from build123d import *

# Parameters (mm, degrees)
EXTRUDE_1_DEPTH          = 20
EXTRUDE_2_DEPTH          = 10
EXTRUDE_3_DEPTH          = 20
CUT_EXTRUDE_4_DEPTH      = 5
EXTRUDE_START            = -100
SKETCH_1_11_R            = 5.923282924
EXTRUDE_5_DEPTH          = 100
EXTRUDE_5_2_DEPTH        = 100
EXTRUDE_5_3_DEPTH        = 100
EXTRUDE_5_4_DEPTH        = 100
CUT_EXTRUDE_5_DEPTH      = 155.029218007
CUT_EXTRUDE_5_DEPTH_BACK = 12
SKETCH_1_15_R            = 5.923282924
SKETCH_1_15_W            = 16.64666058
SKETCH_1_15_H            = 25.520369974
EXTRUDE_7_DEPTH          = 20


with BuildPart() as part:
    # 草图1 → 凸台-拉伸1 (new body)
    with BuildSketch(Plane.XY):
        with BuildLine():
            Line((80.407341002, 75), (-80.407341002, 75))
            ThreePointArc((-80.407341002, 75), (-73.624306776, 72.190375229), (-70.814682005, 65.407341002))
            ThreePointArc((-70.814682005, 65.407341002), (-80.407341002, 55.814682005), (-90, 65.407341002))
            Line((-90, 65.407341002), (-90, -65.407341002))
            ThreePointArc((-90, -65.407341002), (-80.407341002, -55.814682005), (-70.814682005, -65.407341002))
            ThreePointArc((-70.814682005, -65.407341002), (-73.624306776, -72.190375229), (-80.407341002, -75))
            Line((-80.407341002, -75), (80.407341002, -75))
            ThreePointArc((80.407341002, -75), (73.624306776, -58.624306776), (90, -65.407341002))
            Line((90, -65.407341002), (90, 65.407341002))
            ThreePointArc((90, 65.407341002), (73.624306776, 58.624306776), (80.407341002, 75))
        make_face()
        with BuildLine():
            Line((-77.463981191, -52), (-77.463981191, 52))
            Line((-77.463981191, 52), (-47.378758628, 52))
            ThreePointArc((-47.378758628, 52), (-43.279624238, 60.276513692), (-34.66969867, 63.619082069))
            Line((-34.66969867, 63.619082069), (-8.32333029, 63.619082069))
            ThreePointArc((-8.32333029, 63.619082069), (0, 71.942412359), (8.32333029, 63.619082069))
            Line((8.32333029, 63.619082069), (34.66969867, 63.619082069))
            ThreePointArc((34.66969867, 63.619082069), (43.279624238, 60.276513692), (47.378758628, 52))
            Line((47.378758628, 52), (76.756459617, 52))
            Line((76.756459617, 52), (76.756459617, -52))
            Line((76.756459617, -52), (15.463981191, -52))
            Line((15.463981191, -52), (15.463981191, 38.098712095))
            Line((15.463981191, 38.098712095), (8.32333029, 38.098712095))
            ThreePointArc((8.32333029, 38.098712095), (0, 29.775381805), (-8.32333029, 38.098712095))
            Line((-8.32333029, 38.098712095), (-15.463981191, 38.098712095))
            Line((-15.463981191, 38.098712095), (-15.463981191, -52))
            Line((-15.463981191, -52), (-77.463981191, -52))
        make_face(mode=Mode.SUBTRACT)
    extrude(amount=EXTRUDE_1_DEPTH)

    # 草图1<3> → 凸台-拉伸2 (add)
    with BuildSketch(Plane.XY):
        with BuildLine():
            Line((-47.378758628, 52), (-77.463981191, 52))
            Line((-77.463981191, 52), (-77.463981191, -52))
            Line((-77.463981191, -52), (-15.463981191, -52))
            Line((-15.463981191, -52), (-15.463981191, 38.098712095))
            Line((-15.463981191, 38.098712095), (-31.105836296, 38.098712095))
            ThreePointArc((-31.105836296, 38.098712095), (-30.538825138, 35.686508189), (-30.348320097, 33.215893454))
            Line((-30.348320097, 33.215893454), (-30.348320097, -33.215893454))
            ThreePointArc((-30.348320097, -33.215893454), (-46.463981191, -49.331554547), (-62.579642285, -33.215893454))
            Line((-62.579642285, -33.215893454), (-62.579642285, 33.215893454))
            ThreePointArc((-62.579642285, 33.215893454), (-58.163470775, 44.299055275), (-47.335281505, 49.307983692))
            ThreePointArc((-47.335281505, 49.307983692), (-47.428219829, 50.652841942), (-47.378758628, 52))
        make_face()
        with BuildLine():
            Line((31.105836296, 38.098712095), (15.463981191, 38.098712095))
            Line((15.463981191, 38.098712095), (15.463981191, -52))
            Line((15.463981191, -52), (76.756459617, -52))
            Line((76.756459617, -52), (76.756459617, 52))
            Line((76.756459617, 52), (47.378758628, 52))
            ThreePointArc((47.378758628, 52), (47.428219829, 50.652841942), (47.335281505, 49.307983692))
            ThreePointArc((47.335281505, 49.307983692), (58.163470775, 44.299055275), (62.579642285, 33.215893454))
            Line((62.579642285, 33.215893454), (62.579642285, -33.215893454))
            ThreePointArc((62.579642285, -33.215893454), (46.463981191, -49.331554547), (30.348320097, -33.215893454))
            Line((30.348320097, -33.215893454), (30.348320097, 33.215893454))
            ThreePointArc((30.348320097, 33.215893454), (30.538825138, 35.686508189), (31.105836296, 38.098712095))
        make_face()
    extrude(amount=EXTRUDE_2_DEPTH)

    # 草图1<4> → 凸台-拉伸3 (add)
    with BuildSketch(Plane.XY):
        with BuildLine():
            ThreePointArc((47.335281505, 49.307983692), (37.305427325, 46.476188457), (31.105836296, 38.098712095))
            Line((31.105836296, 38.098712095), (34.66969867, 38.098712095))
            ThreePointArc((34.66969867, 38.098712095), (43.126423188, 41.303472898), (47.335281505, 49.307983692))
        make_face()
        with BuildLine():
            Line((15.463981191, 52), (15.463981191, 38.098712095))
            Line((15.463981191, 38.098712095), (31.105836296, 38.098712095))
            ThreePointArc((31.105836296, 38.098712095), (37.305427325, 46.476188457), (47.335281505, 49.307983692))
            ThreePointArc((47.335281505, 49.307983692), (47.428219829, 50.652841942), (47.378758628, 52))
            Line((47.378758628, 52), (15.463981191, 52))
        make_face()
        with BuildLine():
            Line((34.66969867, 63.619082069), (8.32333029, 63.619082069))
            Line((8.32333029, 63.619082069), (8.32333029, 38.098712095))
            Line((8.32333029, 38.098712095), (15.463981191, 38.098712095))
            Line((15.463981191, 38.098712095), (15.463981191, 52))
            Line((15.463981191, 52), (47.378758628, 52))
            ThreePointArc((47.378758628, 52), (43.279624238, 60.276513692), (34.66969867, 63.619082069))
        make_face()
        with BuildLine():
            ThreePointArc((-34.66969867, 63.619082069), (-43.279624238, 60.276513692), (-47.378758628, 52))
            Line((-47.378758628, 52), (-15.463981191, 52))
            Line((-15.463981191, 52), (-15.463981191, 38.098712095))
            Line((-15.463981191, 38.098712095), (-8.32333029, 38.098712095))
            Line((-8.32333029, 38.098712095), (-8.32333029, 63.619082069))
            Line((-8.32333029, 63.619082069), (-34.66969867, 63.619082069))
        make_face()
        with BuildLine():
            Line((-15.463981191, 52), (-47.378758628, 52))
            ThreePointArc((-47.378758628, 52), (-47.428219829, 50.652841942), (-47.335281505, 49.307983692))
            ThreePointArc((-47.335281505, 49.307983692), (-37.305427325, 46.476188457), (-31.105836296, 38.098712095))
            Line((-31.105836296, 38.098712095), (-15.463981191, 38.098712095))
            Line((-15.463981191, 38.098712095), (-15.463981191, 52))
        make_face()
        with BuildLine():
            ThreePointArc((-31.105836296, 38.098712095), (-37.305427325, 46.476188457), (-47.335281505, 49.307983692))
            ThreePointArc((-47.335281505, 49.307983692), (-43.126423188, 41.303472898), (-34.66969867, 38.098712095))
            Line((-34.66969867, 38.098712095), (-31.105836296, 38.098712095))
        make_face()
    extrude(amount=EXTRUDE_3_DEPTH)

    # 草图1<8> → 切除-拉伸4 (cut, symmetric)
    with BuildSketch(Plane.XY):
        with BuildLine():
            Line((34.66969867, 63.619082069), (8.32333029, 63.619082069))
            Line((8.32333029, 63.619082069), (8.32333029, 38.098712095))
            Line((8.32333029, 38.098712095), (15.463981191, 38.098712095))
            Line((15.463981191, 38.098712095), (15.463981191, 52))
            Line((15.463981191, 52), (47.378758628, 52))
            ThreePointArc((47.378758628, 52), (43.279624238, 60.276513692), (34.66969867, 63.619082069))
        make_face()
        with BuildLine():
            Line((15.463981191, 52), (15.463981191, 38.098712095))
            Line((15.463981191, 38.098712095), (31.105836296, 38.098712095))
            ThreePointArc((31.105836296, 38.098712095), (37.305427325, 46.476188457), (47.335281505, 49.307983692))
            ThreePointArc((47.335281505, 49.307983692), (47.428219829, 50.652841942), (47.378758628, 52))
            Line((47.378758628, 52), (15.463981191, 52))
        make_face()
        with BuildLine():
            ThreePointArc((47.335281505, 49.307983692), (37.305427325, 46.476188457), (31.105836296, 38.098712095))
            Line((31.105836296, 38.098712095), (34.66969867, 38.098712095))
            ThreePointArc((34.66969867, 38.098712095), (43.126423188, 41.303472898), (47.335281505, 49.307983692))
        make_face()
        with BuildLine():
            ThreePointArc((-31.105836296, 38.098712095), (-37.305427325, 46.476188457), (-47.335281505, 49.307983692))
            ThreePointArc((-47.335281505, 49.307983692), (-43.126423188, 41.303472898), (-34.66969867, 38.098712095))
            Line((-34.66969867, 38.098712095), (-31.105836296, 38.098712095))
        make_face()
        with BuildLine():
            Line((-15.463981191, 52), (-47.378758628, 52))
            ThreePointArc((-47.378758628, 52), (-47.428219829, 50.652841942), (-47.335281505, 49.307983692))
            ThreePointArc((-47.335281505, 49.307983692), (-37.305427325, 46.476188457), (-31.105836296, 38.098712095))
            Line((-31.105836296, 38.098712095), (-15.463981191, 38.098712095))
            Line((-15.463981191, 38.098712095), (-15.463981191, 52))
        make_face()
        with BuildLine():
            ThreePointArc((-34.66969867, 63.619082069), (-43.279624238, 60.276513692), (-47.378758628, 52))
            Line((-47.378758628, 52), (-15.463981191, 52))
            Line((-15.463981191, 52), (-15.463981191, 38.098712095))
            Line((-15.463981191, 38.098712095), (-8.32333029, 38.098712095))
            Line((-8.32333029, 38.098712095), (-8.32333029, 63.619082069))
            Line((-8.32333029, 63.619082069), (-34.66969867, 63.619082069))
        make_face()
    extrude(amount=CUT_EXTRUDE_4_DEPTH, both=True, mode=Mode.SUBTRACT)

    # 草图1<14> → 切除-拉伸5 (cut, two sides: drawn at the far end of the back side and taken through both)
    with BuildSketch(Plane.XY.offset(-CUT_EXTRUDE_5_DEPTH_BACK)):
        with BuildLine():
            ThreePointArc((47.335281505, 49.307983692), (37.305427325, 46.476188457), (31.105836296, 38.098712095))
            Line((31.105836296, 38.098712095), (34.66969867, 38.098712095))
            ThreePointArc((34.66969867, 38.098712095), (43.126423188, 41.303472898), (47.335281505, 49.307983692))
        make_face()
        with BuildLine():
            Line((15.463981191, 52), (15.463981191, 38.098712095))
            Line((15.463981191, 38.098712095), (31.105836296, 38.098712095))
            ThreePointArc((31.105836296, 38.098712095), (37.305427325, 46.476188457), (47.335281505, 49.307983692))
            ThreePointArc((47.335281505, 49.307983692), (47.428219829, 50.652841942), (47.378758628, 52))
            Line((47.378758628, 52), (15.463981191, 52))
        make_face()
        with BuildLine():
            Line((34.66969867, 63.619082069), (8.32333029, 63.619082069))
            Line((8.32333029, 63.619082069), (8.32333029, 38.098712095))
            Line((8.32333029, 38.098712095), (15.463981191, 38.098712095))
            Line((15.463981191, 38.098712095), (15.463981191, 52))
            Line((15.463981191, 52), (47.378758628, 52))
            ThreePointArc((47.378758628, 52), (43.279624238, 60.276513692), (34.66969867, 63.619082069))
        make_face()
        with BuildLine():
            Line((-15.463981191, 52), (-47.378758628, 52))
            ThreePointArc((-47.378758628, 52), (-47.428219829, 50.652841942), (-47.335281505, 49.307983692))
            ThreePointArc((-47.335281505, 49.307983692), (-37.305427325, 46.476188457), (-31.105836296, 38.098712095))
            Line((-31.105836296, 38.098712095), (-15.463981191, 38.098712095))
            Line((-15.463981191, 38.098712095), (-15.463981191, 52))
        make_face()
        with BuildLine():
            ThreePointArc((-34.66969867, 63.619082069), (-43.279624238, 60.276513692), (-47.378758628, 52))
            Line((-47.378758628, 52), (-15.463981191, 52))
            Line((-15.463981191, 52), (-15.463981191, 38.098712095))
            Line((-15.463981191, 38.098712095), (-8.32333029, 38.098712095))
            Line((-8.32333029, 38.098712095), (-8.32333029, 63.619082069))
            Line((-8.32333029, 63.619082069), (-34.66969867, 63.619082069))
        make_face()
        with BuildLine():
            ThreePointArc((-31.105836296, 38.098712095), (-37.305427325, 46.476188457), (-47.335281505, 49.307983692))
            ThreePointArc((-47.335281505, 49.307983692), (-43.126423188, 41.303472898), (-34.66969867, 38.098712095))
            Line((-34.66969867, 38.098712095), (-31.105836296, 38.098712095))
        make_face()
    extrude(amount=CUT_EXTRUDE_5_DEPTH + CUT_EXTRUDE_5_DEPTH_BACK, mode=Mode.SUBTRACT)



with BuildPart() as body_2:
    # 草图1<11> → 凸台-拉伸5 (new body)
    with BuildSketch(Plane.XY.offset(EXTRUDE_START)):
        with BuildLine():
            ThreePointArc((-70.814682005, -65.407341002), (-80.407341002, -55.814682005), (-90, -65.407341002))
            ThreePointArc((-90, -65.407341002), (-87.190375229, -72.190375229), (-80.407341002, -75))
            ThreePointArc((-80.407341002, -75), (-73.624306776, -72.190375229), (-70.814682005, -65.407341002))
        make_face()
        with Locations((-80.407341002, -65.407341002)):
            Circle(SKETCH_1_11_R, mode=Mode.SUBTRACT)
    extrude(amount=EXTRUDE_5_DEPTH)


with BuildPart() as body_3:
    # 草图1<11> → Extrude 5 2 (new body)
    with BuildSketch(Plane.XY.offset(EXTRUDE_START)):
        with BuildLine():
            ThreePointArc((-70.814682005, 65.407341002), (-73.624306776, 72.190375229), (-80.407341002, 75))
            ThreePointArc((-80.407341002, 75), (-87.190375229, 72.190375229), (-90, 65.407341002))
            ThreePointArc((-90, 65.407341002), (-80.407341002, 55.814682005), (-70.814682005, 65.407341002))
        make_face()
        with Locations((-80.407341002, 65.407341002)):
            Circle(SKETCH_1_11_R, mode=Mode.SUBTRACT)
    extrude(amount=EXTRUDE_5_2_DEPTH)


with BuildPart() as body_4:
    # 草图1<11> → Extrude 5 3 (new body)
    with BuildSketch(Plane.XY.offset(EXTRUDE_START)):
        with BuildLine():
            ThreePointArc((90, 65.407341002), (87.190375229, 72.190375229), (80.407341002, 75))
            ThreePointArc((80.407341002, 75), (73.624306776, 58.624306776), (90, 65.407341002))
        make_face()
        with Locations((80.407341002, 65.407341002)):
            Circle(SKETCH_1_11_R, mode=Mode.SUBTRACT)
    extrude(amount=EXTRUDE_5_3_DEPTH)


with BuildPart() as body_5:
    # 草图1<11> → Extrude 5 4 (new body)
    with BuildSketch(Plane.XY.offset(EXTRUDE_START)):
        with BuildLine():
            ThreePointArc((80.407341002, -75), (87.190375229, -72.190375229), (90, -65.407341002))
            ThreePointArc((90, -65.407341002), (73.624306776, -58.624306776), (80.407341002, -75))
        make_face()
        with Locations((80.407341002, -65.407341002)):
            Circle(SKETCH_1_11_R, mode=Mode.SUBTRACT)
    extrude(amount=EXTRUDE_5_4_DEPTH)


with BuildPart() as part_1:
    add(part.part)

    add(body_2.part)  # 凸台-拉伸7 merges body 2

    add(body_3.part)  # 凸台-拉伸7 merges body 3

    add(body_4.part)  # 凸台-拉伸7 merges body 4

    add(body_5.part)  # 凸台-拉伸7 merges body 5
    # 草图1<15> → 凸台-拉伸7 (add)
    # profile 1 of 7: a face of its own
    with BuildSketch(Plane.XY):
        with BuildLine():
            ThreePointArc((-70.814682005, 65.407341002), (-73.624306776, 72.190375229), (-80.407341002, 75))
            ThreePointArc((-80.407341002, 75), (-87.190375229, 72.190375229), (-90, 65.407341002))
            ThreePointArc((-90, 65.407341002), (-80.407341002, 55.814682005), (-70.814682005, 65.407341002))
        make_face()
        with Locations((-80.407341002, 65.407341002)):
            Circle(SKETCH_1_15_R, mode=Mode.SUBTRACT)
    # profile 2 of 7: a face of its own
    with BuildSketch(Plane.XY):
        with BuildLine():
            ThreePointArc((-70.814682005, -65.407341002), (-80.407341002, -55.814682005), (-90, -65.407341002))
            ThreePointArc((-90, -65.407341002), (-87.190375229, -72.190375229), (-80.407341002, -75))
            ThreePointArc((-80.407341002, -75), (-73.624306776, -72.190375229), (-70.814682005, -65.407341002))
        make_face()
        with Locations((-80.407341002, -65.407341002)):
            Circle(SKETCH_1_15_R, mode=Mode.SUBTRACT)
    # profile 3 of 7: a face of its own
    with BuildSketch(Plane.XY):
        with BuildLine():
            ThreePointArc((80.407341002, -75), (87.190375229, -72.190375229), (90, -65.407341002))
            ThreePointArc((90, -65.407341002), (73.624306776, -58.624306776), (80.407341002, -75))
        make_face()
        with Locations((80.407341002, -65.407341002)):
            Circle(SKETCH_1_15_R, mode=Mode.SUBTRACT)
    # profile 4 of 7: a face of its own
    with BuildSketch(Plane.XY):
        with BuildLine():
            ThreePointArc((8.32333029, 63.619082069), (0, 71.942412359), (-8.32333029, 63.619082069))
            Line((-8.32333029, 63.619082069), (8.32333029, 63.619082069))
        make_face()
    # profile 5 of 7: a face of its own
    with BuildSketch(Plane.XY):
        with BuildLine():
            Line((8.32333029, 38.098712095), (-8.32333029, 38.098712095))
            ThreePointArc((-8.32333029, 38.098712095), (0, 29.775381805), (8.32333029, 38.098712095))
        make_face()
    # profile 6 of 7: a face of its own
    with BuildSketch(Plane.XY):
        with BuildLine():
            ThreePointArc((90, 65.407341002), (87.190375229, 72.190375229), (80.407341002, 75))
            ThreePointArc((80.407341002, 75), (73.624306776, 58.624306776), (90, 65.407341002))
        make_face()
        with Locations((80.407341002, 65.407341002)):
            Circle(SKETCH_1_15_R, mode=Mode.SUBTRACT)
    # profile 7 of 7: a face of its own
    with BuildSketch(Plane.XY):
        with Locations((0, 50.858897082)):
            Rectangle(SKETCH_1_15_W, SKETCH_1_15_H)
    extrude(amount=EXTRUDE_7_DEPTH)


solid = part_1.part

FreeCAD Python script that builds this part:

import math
import FreeCAD as App
import Part
import Sketcher

V = App.Vector
Q = App.Units.Quantity

doc = App.newDocument("Part")
params = doc.addObject("Spreadsheet::Sheet", "Params")
for row, (alias, value) in enumerate([
    ("sketch1_width", "62 mm"),
    ("sketch1_height", "104 mm"),
    ("pad1_length", "20 mm"),
    ("sketch2_width", "62 mm"),
    ("sketch2_height", "104 mm"),
    ("pad2_length", "10 mm"),
    ("pad3_length", "20 mm"),
    ("pocket1_length", "10 mm"),
    ("pad4_length", "100 mm"),
    ("pad5_length", "100 mm"),
    ("pad6_length", "100 mm"),
    ("pad7_length", "100 mm"),
    ("pad8_length", "20 mm"),
], start=1):
    params.set(f"A{row}", alias)
    params.set(f"B{row}", "=" + value)
    params.setAlias(f"B{row}", alias)

body = doc.addObject("PartDesign::Body", "Body")

# Sketch on XY plane
sketch1 = body.newObject("Sketcher::SketchObject", "Sketch")
sketch1.AttachmentSupport = (doc.getObject("XY_Plane"), [""])
sketch1.MapMode = "FlatFace"
sketch1.addGeometry(Part.LineSegment(V(80, 75, 0), V(-80, 75, 0)), False)
sketch1.addGeometry(Part.ArcOfCircle(Part.Circle(V(-80, 65, 0), V(0, 0, 1), 10), math.radians(0), math.radians(90)), False)
sketch1.addGeometry(Part.ArcOfCircle(Part.Circle(V(-80, 65, 0), V(0, 0, 1), 10), math.radians(-180), math.radians(0)), False)
sketch1.addGeometry(Part.LineSegment(V(-90, 65, 0), V(-90, -65, 0)), False)
sketch1.addGeometry(Part.ArcOfCircle(Part.Circle(V(-80, -65, 0), V(0, 0, 1), 10), math.radians(0), math.radians(180)), False)
sketch1.addGeometry(Part.ArcOfCircle(Part.Circle(V(-80, -65, 0), V(0, 0, 1), 10), math.radians(-90), math.radians(0)), False)
sketch1.addGeometry(Part.LineSegment(V(-80, -75, 0), V(80, -75, 0)), False)
sketch1.addGeometry(Part.ArcOfCircle(Part.Circle(V(80, -65, 0), V(0, 0, 1), 10), math.radians(0), math.radians(270)), False)
sketch1.addGeometry(Part.LineSegment(V(90, -65, 0), V(90, 65, 0)), False)
sketch1.addGeometry(Part.ArcOfCircle(Part.Circle(V(80, 65, 0), V(0, 0, 1), 10), math.radians(90), math.radians(360)), False)
sketch1.addGeometry(Part.LineSegment(V(-15, -52, 0), V(-77, -52, 0)), False)
sketch1.addGeometry(Part.LineSegment(V(-77, -52, 0), V(-77, 52, 0)), False)
sketch1.addGeometry(Part.LineSegment(V(-77, 52, 0), V(-47, 52, 0)), False)
sketch1.addGeometry(Part.ArcOfCircle(Part.Circle(V(-35, 51, 0), V(0, 0, 1), 13), math.radians(90), math.radians(175)), False)
sketch1.addGeometry(Part.LineSegment(V(-35, 64, 0), V(-8, 64, 0)), False)
sketch1.addGeometry(Part.ArcOfCircle(Part.Circle(V(0, 64, 0), V(0, 0, 1), 8), math.radians(0), math.radians(180)), False)
sketch1.addGeometry(Part.LineSegment(V(8, 64, 0), V(35, 64, 0)), False)
sketch1.addGeometry(Part.ArcOfCircle(Part.Circle(V(35, 51, 0), V(0, 0, 1), 13), math.radians(5), math.radians(90)), False)
sketch1.addGeometry(Part.LineSegment(V(47, 52, 0), V(77, 52, 0)), False)
sketch1.addGeometry(Part.LineSegment(V(77, 52, 0), V(77, -52, 0)), False)
sketch1.addGeometry(Part.LineSegment(V(77, -52, 0), V(15, -52, 0)), False)
sketch1.addGeometry(Part.LineSegment(V(15, -52, 0), V(15, 38, 0)), False)
sketch1.addGeometry(Part.LineSegment(V(15, 38, 0), V(8, 38, 0)), False)
sketch1.addGeometry(Part.ArcOfCircle(Part.Circle(V(0, 38, 0), V(0, 0, 1), 8), math.radians(180), math.radians(360)), False)
sketch1.addGeometry(Part.LineSegment(V(-8, 38, 0), V(-15, 38, 0)), False)
sketch1.addGeometry(Part.LineSegment(V(-15, 38, 0), V(-15, -52, 0)), False)
sketch1.addConstraint(Sketcher.Constraint("Tangent", 0, 2, 1, 2))
sketch1.addConstraint(Sketcher.Constraint("Tangent", 1, 1, 2, 2))
sketch1.addConstraint(Sketcher.Constraint("Tangent", 2, 1, 3, 1))
sketch1.addConstraint(Sketcher.Constraint("Tangent", 3, 2, 4, 2))
sketch1.addConstraint(Sketcher.Constraint("Tangent", 4, 1, 5, 2))
sketch1.addConstraint(Sketcher.Constraint("Tangent", 5, 1, 6, 1))
sketch1.addConstraint(Sketcher.Constraint("Tangent", 6, 2, 7, 2))
sketch1.addConstraint(Sketcher.Constraint("Tangent", 7, 1, 8, 1))
sketch1.addConstraint(Sketcher.Constraint("Tangent", 8, 2, 9, 2))
sketch1.addConstraint(Sketcher.Constraint("Tangent", 9, 1, 0, 1))
sketch1.addConstraint(Sketcher.Constraint("Coincident", 10, 2, 11, 1))
sketch1.addConstraint(Sketcher.Constraint("Coincident", 11, 2, 12, 1))
sketch1.addConstraint(Sketcher.Constraint("Coincident", 12, 2, 13, 2))
sketch1.addConstraint(Sketcher.Constraint("Tangent", 13, 1, 14, 1))
sketch1.addConstraint(Sketcher.Constraint("Coincident", 14, 2, 15, 2))
sketch1.addConstraint(Sketcher.Constraint("Coincident", 15, 1, 16, 1))
sketch1.addConstraint(Sketcher.Constraint("Tangent", 16, 2, 17, 2))
sketch1.addConstraint(Sketcher.Constraint("Coincident", 17, 1, 18, 1))
sketch1.addConstraint(Sketcher.Constraint("Coincident", 18, 2, 19, 1))
sketch1.addConstraint(Sketcher.Constraint("Coincident", 19, 2, 20, 1))
sketch1.addConstraint(Sketcher.Constraint("Coincident", 20, 2, 21, 1))
sketch1.addConstraint(Sketcher.Constraint("Coincident", 21, 2, 22, 1))
sketch1.addConstraint(Sketcher.Constraint("Coincident", 22, 2, 23, 2))
sketch1.addConstraint(Sketcher.Constraint("Coincident", 23, 1, 24, 1))
sketch1.addConstraint(Sketcher.Constraint("Coincident", 24, 2, 25, 1))
sketch1.addConstraint(Sketcher.Constraint("Coincident", 25, 2, 10, 1))
sketch1.addConstraint(Sketcher.Constraint("Horizontal", 0))
sketch1.addConstraint(Sketcher.Constraint("Vertical", 3))
sketch1.addConstraint(Sketcher.Constraint("Horizontal", 6))
sketch1.addConstraint(Sketcher.Constraint("Vertical", 8))
sketch1.addConstraint(Sketcher.Constraint("Horizontal", 10))
sketch1.addConstraint(Sketcher.Constraint("Vertical", 11))
sketch1.addConstraint(Sketcher.Constraint("Horizontal", 12))
sketch1.addConstraint(Sketcher.Constraint("Horizontal", 14))
sketch1.addConstraint(Sketcher.Constraint("Horizontal", 16))
sketch1.addConstraint(Sketcher.Constraint("Horizontal", 18))
sketch1.addConstraint(Sketcher.Constraint("Vertical", 19))
sketch1.addConstraint(Sketcher.Constraint("Horizontal", 20))
sketch1.addConstraint(Sketcher.Constraint("Vertical", 21))
sketch1.addConstraint(Sketcher.Constraint("Horizontal", 22))
sketch1.addConstraint(Sketcher.Constraint("Horizontal", 24))
sketch1.addConstraint(Sketcher.Constraint("Vertical", 25))
sketch1.addConstraint(Sketcher.Constraint("Equal", 1, 2))
sketch1.addConstraint(Sketcher.Constraint("Equal", 2, 4))
sketch1.addConstraint(Sketcher.Constraint("Equal", 4, 5))
sketch1.addConstraint(Sketcher.Constraint("Equal", 5, 7))
sketch1.addConstraint(Sketcher.Constraint("Equal", 7, 9))
sketch1.addConstraint(Sketcher.Constraint("Equal", 13, 17))
sketch1.addConstraint(Sketcher.Constraint("Equal", 15, 23))
sketch1.addConstraint(Sketcher.Constraint("Symmetric", 1, 3, 7, 3, -1, 1))
sketch1.addConstraint(Sketcher.Constraint("Symmetric", 13, 3, 17, 3, -2))
sketch1.addConstraint(Sketcher.Constraint("Symmetric", 22, 2, 23, 1, -2))
sketch1.addConstraint(Sketcher.Constraint("Symmetric", 20, 2, 25, 2, -2))
sketch1.addConstraint(Sketcher.Constraint("PointOnObject", 15, 3, -2))
sketch1.addConstraint(Sketcher.Constraint("Horizontal", 9, 3, 1, 1))
sketch1.addConstraint(Sketcher.Constraint("Horizontal", 3, 2, 4, 1))
sketch1.addConstraint(Sketcher.Constraint("Horizontal", 15, 3, 13, 1))
sketch1.addConstraint(Sketcher.Constraint("Horizontal", 12, 2, 17, 1))
sketch1.addConstraint(Sketcher.Constraint("Horizontal", 23, 3, 21, 2))
sketch1.addConstraint(Sketcher.Constraint("DistanceX", 10, 2, 10, 1, Q("62 mm")))
sketch1.addConstraint(Sketcher.Constraint("DistanceY", 11, 1, 11, 2, Q("104 mm")))
sketch1.addConstraint(Sketcher.Constraint("DistanceY", -1, 1, 0, 2, Q("75 mm")))
sketch1.addConstraint(Sketcher.Constraint("DistanceX", 2, 1, -1, 1, Q("90 mm")))
sketch1.addConstraint(Sketcher.Constraint("DistanceY", 10, 2, -1, 1, Q("52 mm")))
sketch1.addConstraint(Sketcher.Constraint("Radius", 1, Q("9.592659 mm")))
sketch1.addConstraint(Sketcher.Constraint("Radius", 15, Q("8.32333 mm")))
sketch1.addConstraint(Sketcher.Constraint("DistanceX", 18, 1, 18, 2, Q("29.377701 mm")))
sketch1.addConstraint(Sketcher.Constraint("Radius", 13, Q("12.760185 mm")))
sketch1.addConstraint(Sketcher.Constraint("DistanceX", 14, 1, 14, 2, Q("26.346368 mm")))
sketch1.addConstraint(Sketcher.Constraint("DistanceX", 20, 2, 20, 1, Q("61.292478 mm")))
sketch1.addConstraint(Sketcher.Constraint("DistanceX", 22, 2, 22, 1, Q("7.140651 mm")))
sketch1.addConstraint(Sketcher.Constraint("DistanceY", 21, 1, 21, 2, Q("90.098712 mm")))
sketch1.setExpression("Constraints[59]", "Params.sketch1_width")
sketch1.setExpression("Constraints[60]", "Params.sketch1_height")
pad1 = body.newObject("PartDesign::Pad", "Pad")
pad1.Profile = sketch1
pad1.setExpression("Length", "Params.pad1_length")

# Sketch on XY plane
sketch2 = body.newObject("Sketcher::SketchObject", "Sketch001")
sketch2.AttachmentSupport = (doc.getObject("XY_Plane"), [""])
sketch2.MapMode = "FlatFace"
sketch2.addGeometry(Part.LineSegment(V(-47.4, 52, 0), V(-77.5, 52, 0)), False)
sketch2.addGeometry(Part.LineSegment(V(-77.5, 52, 0), V(-77.5, -52, 0)), False)
sketch2.addGeometry(Part.LineSegment(V(-77.5, -52, 0), V(-15.5, -52, 0)), False)
sketch2.addGeometry(Part.LineSegment(V(-15.5, -52, 0), V(-15.5, 38.1, 0)), False)
sketch2.addGeometry(Part.LineSegment(V(-15.5, 38.1, 0), V(-31.1, 38.1, 0)), False)
sketch2.addGeometry(Part.ArcOfCircle(Part.Circle(V(-46.5, 33.2, 0), V(0, 0, 1), 16.1), math.radians(0), math.radians(17.64)), False)
sketch2.addGeometry(Part.LineSegment(V(-30.3, 33.2, 0), V(-30.3, -33.2, 0)), False)
sketch2.addGeometry(Part.ArcOfCircle(Part.Circle(V(-46.5, -33.2, 0), V(0, 0, 1), 16.1), math.radians(-180), math.radians(0)), False)
sketch2.addGeometry(Part.LineSegment(V(-62.6, -33.2, 0), V(-62.6, 33.2, 0)), False)
sketch2.addGeometry(Part.ArcOfCircle(Part.Circle(V(-46.5, 33.2, 0), V(0, 0, 1), 16.1), math.radians(93), math.radians(180)), False)
sketch2.addGeometry(Part.ArcOfCircle(Part.Circle(V(-34.7, 50.9, 0), V(0, 0, 1), 12.8), math.radians(174.87), math.radians(186.98)), False)
sketch2.addGeometry(Part.LineSegment(V(31.1, 38.1, 0), V(15.5, 38.1, 0)), False)
sketch2.addGeometry(Part.LineSegment(V(15.5, 38.1, 0), V(15.5, -52, 0)), False)
sketch2.addGeometry(Part.LineSegment(V(15.5, -52, 0), V(76.8, -52, 0)), False)
sketch2.addGeometry(Part.LineSegment(V(76.8, -52, 0), V(76.8, 52, 0)), False)
sketch2.addGeometry(Part.LineSegment(V(76.8, 52, 0), V(47.4, 52, 0)), False)
sketch2.addGeometry(Part.ArcOfCircle(Part.Circle(V(34.7, 50.9, 0), V(0, 0, 1), 12.8), math.radians(-6.98), math.radians(5.13)), False)
sketch2.addGeometry(Part.ArcOfCircle(Part.Circle(V(46.5, 33.2, 0), V(0, 0, 1), 16.1), math.radians(0), math.radians(87)), False)
sketch2.addGeometry(Part.LineSegment(V(62.6, 33.2, 0), V(62.6, -33.2, 0)), False)
sketch2.addGeometry(Part.ArcOfCircle(Part.Circle(V(46.5, -33.2, 0), V(0, 0, 1), 16.1), math.radians(-180), math.radians(0)), False)
sketch2.addGeometry(Part.LineSegment(V(30.3, -33.2, 0), V(30.3, 33.2, 0)), False)
sketch2.addGeometry(Part.ArcOfCircle(Part.Circle(V(46.5, 33.2, 0), V(0, 0, 1), 16.1), math.radians(162.36), math.radians(180)), False)
sketch2.addConstraint(Sketcher.Constraint("Coincident", 0, 2, 1, 1))
sketch2.addConstraint(Sketcher.Constraint("Coincident", 1, 2, 2, 1))
sketch2.addConstraint(Sketcher.Constraint("Coincident", 2, 2, 3, 1))
sketch2.addConstraint(Sketcher.Constraint("Coincident", 3, 2, 4, 1))
sketch2.addConstraint(Sketcher.Constraint("Coincident", 4, 2, 5, 2))
sketch2.addConstraint(Sketcher.Constraint("Tangent", 5, 1, 6, 1))
sketch2.addConstraint(Sketcher.Constraint("Tangent", 6, 2, 7, 2))
sketch2.addConstraint(Sketcher.Constraint("Tangent", 7, 1, 8, 1))
sketch2.addConstraint(Sketcher.Constraint("Tangent", 8, 2, 9, 2))
sketch2.addConstraint(Sketcher.Constraint("Coincident", 9, 1, 10, 2))
sketch2.addConstraint(Sketcher.Constraint("Coincident", 10, 1, 0, 1))
sketch2.addConstraint(Sketcher.Constraint("Coincident", 11, 2, 12, 1))
sketch2.addConstraint(Sketcher.Constraint("Coincident", 12, 2, 13, 1))
sketch2.addConstraint(Sketcher.Constraint("Coincident", 13, 2, 14, 1))
sketch2.addConstraint(Sketcher.Constraint("Coincident", 14, 2, 15, 1))
sketch2.addConstraint(Sketcher.Constraint("Coincident", 15, 2, 16, 2))
sketch2.addConstraint(Sketcher.Constraint("Coincident", 16, 1, 17, 2))
sketch2.addConstraint(Sketcher.Constraint("Tangent", 17, 1, 18, 1))
sketch2.addConstraint(Sketcher.Constraint("Tangent", 18, 2, 19, 2))
sketch2.addConstraint(Sketcher.Constraint("Tangent", 19, 1, 20, 1))
sketch2.addConstraint(Sketcher.Constraint("Tangent", 20, 2, 21, 2))
sketch2.addConstraint(Sketcher.Constraint("Coincident", 21, 1, 11, 1))
sketch2.addConstraint(Sketcher.Constraint("Horizontal", 0))
sketch2.addConstraint(Sketcher.Constraint("Vertical", 1))
sketch2.addConstraint(Sketcher.Constraint("Horizontal", 2))
sketch2.addConstraint(Sketcher.Constraint("Vertical", 3))
sketch2.addConstraint(Sketcher.Constraint("Horizontal", 4))
sketch2.addConstraint(Sketcher.Constraint("Vertical", 6))
sketch2.addConstraint(Sketcher.Constraint("Vertical", 8))
sketch2.addConstraint(Sketcher.Constraint("Horizontal", 11))
sketch2.addConstraint(Sketcher.Constraint("Vertical", 12))
sketch2.addConstraint(Sketcher.Constraint("Horizontal", 13))
sketch2.addConstraint(Sketcher.Constraint("Vertical", 14))
sketch2.addConstraint(Sketcher.Constraint("Horizontal", 15))
sketch2.addConstraint(Sketcher.Constraint("Vertical", 18))
sketch2.addConstraint(Sketcher.Constraint("Vertical", 20))
sketch2.addConstraint(Sketcher.Constraint("Coincident", 9, 3, 5, 3))
sketch2.addConstraint(Sketcher.Constraint("Coincident", 21, 3, 17, 3))
sketch2.addConstraint(Sketcher.Constraint("Equal", 5, 7))
sketch2.addConstraint(Sketcher.Constraint("Equal", 10, 16))
sketch2.addConstraint(Sketcher.Constraint("Equal", 9, 17))
sketch2.addConstraint(Sketcher.Constraint("Equal", 17, 19))
sketch2.addConstraint(Sketcher.Constraint("Symmetric", 7, 3, 17, 3, -1, 1))
sketch2.addConstraint(Sketcher.Constraint("Symmetric", 10, 3, 16, 3, -2))
sketch2.addConstraint(Sketcher.Constraint("Symmetric", 3, 2, 11, 2, -2))
sketch2.addConstraint(Sketcher.Constraint("Horizontal", 9, 3, 17, 3))
sketch2.addConstraint(Sketcher.Constraint("Horizontal", 7, 3, 19, 3))
sketch2.addConstraint(Sketcher.Constraint("Horizontal", 2, 2, 12, 2))
sketch2.addConstraint(Sketcher.Constraint("Horizontal", 10, 1, 14, 2))
sketch2.addConstraint(Sketcher.Constraint("DistanceX", 2, 1, 2, 2, Q("62 mm")))
sketch2.addConstraint(Sketcher.Constraint("DistanceY", 1, 2, 1, 1, Q("104 mm")))
sketch2.addConstraint(Sketcher.Constraint("DistanceY", -1, 1, 0, 2, Q("52 mm")))
sketch2.addConstraint(Sketcher.Constraint("DistanceX", 0, 2, 5, 3, Q("31 mm")))
sketch2.addConstraint(Sketcher.Constraint("Radius", 5, Q("16.115661 mm")))
sketch2.addConstraint(Sketcher.Constraint("DistanceX", 15, 2, 15, 1, Q("29.377701 mm")))
sketch2.addConstraint(Sketcher.Constraint("Radius", 10, Q("12.760185 mm")))
sketch2.addConstraint(Sketcher.Constraint("DistanceX", 13, 1, 13, 2, Q("61.292478 mm")))
sketch2.addConstraint(Sketcher.Constraint("DistanceX", 10, 3, -1, 1, Q("34.669699 mm")))
sketch2.addConstraint(Sketcher.Constraint("DistanceX", 9, 1, 9, 3, Q("0.8713 mm")))
sketch2.addConstraint(Sketcher.Constraint("DistanceX", 5, 1, 11, 2, Q("45.812301 mm")))
sketch2.addConstraint(Sketcher.Constraint("DistanceX", 4, 2, 4, 1, Q("15.641855 mm")))
sketch2.setExpression("Constraints[49]", "Params.sketch2_width")
sketch2.setExpression("Constraints[50]", "Params.sketch2_height")
pad2 = body.newObject("PartDesign::Pad", "Pad001")
pad2.Profile = sketch2
pad2.setExpression("Length", "Params.pad2_length")

# Sketch on XY plane
sketch3 = body.newObject("Sketcher::SketchObject", "Sketch002")
sketch3.AttachmentSupport = (doc.getObject("XY_Plane"), [""])
sketch3.MapMode = "FlatFace"
sketch3.addGeometry(Part.ArcOfCircle(Part.Circle(V(34.7, 50.9, 0), V(0, 0, 1), 12.8), math.radians(-90), math.radians(-7)), False)
sketch3.addGeometry(Part.ArcOfCircle(Part.Circle(V(34.7, 50.9, 0), V(0, 0, 1), 12.8), math.radians(-6.98), math.radians(5.13)), False)
sketch3.addGeometry(Part.ArcOfCircle(Part.Circle(V(34.7, 50.9, 0), V(0, 0, 1), 12.8), math.radians(5), math.radians(90)), False)
sketch3.addGeometry(Part.LineSegment(V(34.7, 63.6, 0), V(8.3, 63.6, 0)), False)
sketch3.addGeometry(Part.LineSegment(V(8.3, 63.6, 0), V(8.3, 38.1, 0)), False)
sketch3.addGeometry(Part.LineSegment(V(8.3, 38.1, 0), V(34.7, 38.1, 0)), False)
sketch3.addGeometry(Part.ArcOfCircle(Part.Circle(V(-34.7, 50.9, 0), V(0, 0, 1), 12.8), math.radians(90), math.radians(175)), False)
sketch3.addGeometry(Part.ArcOfCircle(Part.Circle(V(-34.7, 50.9, 0), V(0, 0, 1), 12.8), math.radians(174.87), math.radians(186.98)), False)
sketch3.addGeometry(Part.ArcOfCircle(Part.Circle(V(-34.7, 50.9, 0), V(0, 0, 1), 12.8), math.radians(-173), math.radians(-90)), False)
sketch3.addGeometry(Part.LineSegment(V(-34.7, 38.1, 0), V(-8.3, 38.1, 0)), False)
sketch3.addGeometry(Part.LineSegment(V(-8.3, 38.1, 0), V(-8.3, 63.6, 0)), False)
sketch3.addGeometry(Part.LineSegment(V(-8.3, 63.6, 0), V(-34.7, 63.6, 0)), False)
sketch3.addConstraint(Sketcher.Constraint("Tangent", 0, 2, 1, 1))
sketch3.addConstraint(Sketcher.Constraint("Tangent", 1, 2, 2, 1))
sketch3.addConstraint(Sketcher.Constraint("Tangent", 2, 2, 3, 1))
sketch3.addConstraint(Sketcher.Constraint("Coincident", 3, 2, 4, 1))
sketch3.addConstraint(Sketcher.Constraint("Coincident", 4, 2, 5, 1))
sketch3.addConstraint(Sketcher.Constraint("Tangent", 5, 2, 0, 1))
sketch3.addConstraint(Sketcher.Constraint("Tangent", 6, 2, 7, 1))
sketch3.addConstraint(Sketcher.Constraint("Tangent", 7, 2, 8, 1))
sketch3.addConstraint(Sketcher.Constraint("Tangent", 8, 2, 9, 1))
sketch3.addConstraint(Sketcher.Constraint("Coincident", 9, 2, 10, 1))
sketch3.addConstraint(Sketcher.Constraint("Coincident", 10, 2, 11, 1))
sketch3.addConstraint(Sketcher.Constraint("Tangent", 11, 2, 6, 1))
sketch3.addConstraint(Sketcher.Constraint("Horizontal", 3))
sketch3.addConstraint(Sketcher.Constraint("Vertical", 4))
sketch3.addConstraint(Sketcher.Constraint("Horizontal", 5))
sketch3.addConstraint(Sketcher.Constraint("Horizontal", 9))
sketch3.addConstraint(Sketcher.Constraint("Vertical", 10))
sketch3.addConstraint(Sketcher.Constraint("Horizontal", 11))
sketch3.addConstraint(Sketcher.Constraint("Coincident", 2, 3, 0, 3))
sketch3.addConstraint(Sketcher.Constraint("Coincident", 8, 3, 6, 3))
sketch3.addConstraint(Sketcher.Constraint("Equal", 2, 6))
sketch3.addConstraint(Sketcher.Constraint("Symmetric", 0, 3, 6, 3, -2))
sketch3.addConstraint(Sketcher.Constraint("Horizontal", 1, 2, 6, 2))
sketch3.addConstraint(Sketcher.Constraint("Horizontal", 0, 2, 7, 2))
sketch3.addConstraint(Sketcher.Constraint("Equal", 5, 9))
sketch3.addConstraint(Sketcher.Constraint("DistanceY", -1, 1, 1, 2, Q("52 mm")))
sketch3.addConstraint(Sketcher.Constraint("Radius", 0, Q("12.760185 mm")))
sketch3.addConstraint(Sketcher.Constraint("DistanceX", 3, 2, 3, 1, Q("26.346368 mm")))
sketch3.addConstraint(Sketcher.Constraint("DistanceX", -1, 1, 0, 3, Q("34.669699 mm")))
sketch3.addConstraint(Sketcher.Constraint("DistanceY", 0, 2, 2, 2, Q("14.311098 mm")))
sketch3.addConstraint(Sketcher.Constraint("DistanceX", -1, 1, 1, 2, Q("47.378759 mm")))
pad3 = body.newObject("PartDesign::Pad", "Pad002")
pad3.Profile = sketch3
pad3.setExpression("Length", "Params.pad3_length")

# Sketch on XY plane
sketch4 = body.newObject("Sketcher::SketchObject", "Sketch003")
sketch4.AttachmentSupport = (doc.getObject("XY_Plane"), [""])
sketch4.MapMode = "FlatFace"
sketch4.addGeometry(Part.LineSegment(V(34.7, 63.6, 0), V(8.3, 63.6, 0)), False)
sketch4.addGeometry(Part.LineSegment(V(8.3, 63.6, 0), V(8.3, 38.1, 0)), False)
sketch4.addGeometry(Part.LineSegment(V(8.3, 38.1, 0), V(34.7, 38.1, 0)), False)
sketch4.addGeometry(Part.ArcOfCircle(Part.Circle(V(34.7, 50.9, 0), V(0, 0, 1), 12.8), math.radians(-90), math.radians(-7)), False)
sketch4.addGeometry(Part.ArcOfCircle(Part.Circle(V(34.7, 50.9, 0), V(0, 0, 1), 12.8), math.radians(-6.98), math.radians(5.13)), False)
sketch4.addGeometry(Part.ArcOfCircle(Part.Circle(V(34.7, 50.9, 0), V(0, 0, 1), 12.8), math.radians(5), math.radians(90)), False)
sketch4.addGeometry(Part.ArcOfCircle(Part.Circle(V(-34.7, 50.9, 0), V(0, 0, 1), 12.8), math.radians(-173), math.radians(-90)), False)
sketch4.addGeometry(Part.LineSegment(V(-34.7, 38.1, 0), V(-8.3, 38.1, 0)), False)
sketch4.addGeometry(Part.LineSegment(V(-8.3, 38.1, 0), V(-8.3, 63.6, 0)), False)
sketch4.addGeometry(Part.LineSegment(V(-8.3, 63.6, 0), V(-34.7, 63.6, 0)), False)
sketch4.addGeometry(Part.ArcOfCircle(Part.Circle(V(-34.7, 50.9, 0), V(0, 0, 1), 12.8), math.radians(90), math.radians(175)), False)
sketch4.addGeometry(Part.ArcOfCircle(Part.Circle(V(-34.7, 50.9, 0), V(0, 0, 1), 12.8), math.radians(174.87), math.radians(186.98)), False)
sketch4.addConstraint(Sketcher.Constraint("Coincident", 0, 2, 1, 1))
sketch4.addConstraint(Sketcher.Constraint("Coincident", 1, 2, 2, 1))
sketch4.addConstraint(Sketcher.Constraint("Tangent", 2, 2, 3, 1))
sketch4.addConstraint(Sketcher.Constraint("Tangent", 3, 2, 4, 1))
sketch4.addConstraint(Sketcher.Constraint("Tangent", 4, 2, 5, 1))
sketch4.addConstraint(Sketcher.Constraint("Tangent", 5, 2, 0, 1))
sketch4.addConstraint(Sketcher.Constraint("Tangent", 6, 2, 7, 1))
sketch4.addConstraint(Sketcher.Constraint("Coincident", 7, 2, 8, 1))
sketch4.addConstraint(Sketcher.Constraint("Coincident", 8, 2, 9, 1))
sketch4.addConstraint(Sketcher.Constraint("Tangent", 9, 2, 10, 1))
sketch4.addConstraint(Sketcher.Constraint("Tangent", 10, 2, 11, 1))
sketch4.addConstraint(Sketcher.Constraint("Tangent", 11, 2, 6, 1))
sketch4.addConstraint(Sketcher.Constraint("Horizontal", 0))
sketch4.addConstraint(Sketcher.Constraint("Vertical", 1))
sketch4.addConstraint(Sketcher.Constraint("Horizontal", 2))
sketch4.addConstraint(Sketcher.Constraint("Horizontal", 7))
sketch4.addConstraint(Sketcher.Constraint("Vertical", 8))
sketch4.addConstraint(Sketcher.Constraint("Horizontal", 9))
sketch4.addConstraint(Sketcher.Constraint("Coincident", 5, 3, 3, 3))
sketch4.addConstraint(Sketcher.Constraint("Coincident", 10, 3, 6, 3))
sketch4.addConstraint(Sketcher.Constraint("Equal", 5, 6))
sketch4.addConstraint(Sketcher.Constraint("Symmetric", 3, 3, 6, 3, -2))
sketch4.addConstraint(Sketcher.Constraint("Horizontal", 4, 2, 10, 2))
sketch4.addConstraint(Sketcher.Constraint("Horizontal", 3, 2, 11, 2))
sketch4.addConstraint(Sketcher.Constraint("Equal", 2, 7))
sketch4.addConstraint(Sketcher.Constraint("DistanceY", -1, 1, 4, 2, Q("52 mm")))
sketch4.addConstraint(Sketcher.Constraint("Radius", 3, Q("12.760185 mm")))
sketch4.addConstraint(Sketcher.Constraint("DistanceX", 0, 2, 0, 1, Q("26.346368 mm")))
sketch4.addConstraint(Sketcher.Constraint("DistanceX", -1, 1, 3, 3, Q("34.669699 mm")))
sketch4.addConstraint(Sketcher.Constraint("DistanceY", 3, 2, 5, 2, Q("14.311098 mm")))
sketch4.addConstraint(Sketcher.Constraint("DistanceX", -1, 1, 4, 2, Q("47.378759 mm")))
pocket1 = body.newObject("PartDesign::Pocket", "Pocket")
pocket1.Profile = sketch4
pocket1.setExpression("Length", "Params.pocket1_length")
pocket1.Midplane = True

# Sketch on XY plane
sketch5 = body.newObject("Sketcher::SketchObject", "Sketch004")
sketch5.AttachmentSupport = (doc.getObject("XY_Plane"), [""])
sketch5.MapMode = "FlatFace"
sketch5.addGeometry(Part.ArcOfCircle(Part.Circle(V(34.7, 50.9, 0), V(0, 0, 1), 12.8), math.radians(-90), math.radians(-7)), False)
sketch5.addGeometry(Part.ArcOfCircle(Part.Circle(V(34.7, 50.9, 0), V(0, 0, 1), 12.8), math.radians(-6.98), math.radians(5.13)), False)
sketch5.addGeometry(Part.ArcOfCircle(Part.Circle(V(34.7, 50.9, 0), V(0, 0, 1), 12.8), math.radians(5), math.radians(90)), False)
sketch5.addGeometry(Part.LineSegment(V(34.7, 63.6, 0), V(8.3, 63.6, 0)), False)
sketch5.addGeometry(Part.LineSegment(V(8.3, 63.6, 0), V(8.3, 38.1, 0)), False)
sketch5.addGeometry(Part.LineSegment(V(8.3, 38.1, 0), V(34.7, 38.1, 0)), False)
sketch5.addGeometry(Part.ArcOfCircle(Part.Circle(V(-34.7, 50.9, 0), V(0, 0, 1), 12.8), math.radians(174.87), math.radians(186.98)), False)
sketch5.addGeometry(Part.ArcOfCircle(Part.Circle(V(-34.7, 50.9, 0), V(0, 0, 1), 12.8), math.radians(-173), math.radians(-90)), False)
sketch5.addGeometry(Part.LineSegment(V(-34.7, 38.1, 0), V(-8.3, 38.1, 0)), False)
sketch5.addGeometry(Part.LineSegment(V(-8.3, 38.1, 0), V(-8.3, 63.6, 0)), False)
sketch5.addGeometry(Part.LineSegment(V(-8.3, 63.6, 0), V(-34.7, 63.6, 0)), False)
sketch5.addGeometry(Part.ArcOfCircle(Part.Circle(V(-34.7, 50.9, 0), V(0, 0, 1), 12.8), math.radians(90), math.radians(175)), False)
sketch5.addConstraint(Sketcher.Constraint("Tangent", 0, 2, 1, 1))
sketch5.addConstraint(Sketcher.Constraint("Tangent", 1, 2, 2, 1))
sketch5.addConstraint(Sketcher.Constraint("Tangent", 2, 2, 3, 1))
sketch5.addConstraint(Sketcher.Constraint("Coincident", 3, 2, 4, 1))
sketch5.addConstraint(Sketcher.Constraint("Coincident", 4, 2, 5, 1))
sketch5.addConstraint(Sketcher.Constraint("Tangent", 5, 2, 0, 1))
sketch5.addConstraint(Sketcher.Constraint("Tangent", 6, 2, 7, 1))
sketch5.addConstraint(Sketcher.Constraint("Tangent", 7, 2, 8, 1))
sketch5.addConstraint(Sketcher.Constraint("Coincident", 8, 2, 9, 1))
sketch5.addConstraint(Sketcher.Constraint("Coincident", 9, 2, 10, 1))
sketch5.addConstraint(Sketcher.Constraint("Tangent", 10, 2, 11, 1))
sketch5.addConstraint(Sketcher.Constraint("Tangent", 11, 2, 6, 1))
sketch5.addConstraint(Sketcher.Constraint("Horizontal", 3))
sketch5.addConstraint(Sketcher.Constraint("Vertical", 4))
sketch5.addConstraint(Sketcher.Constraint("Horizontal", 5))
sketch5.addConstraint(Sketcher.Constraint("Horizontal", 8))
sketch5.addConstraint(Sketcher.Constraint("Vertical", 9))
sketch5.addConstraint(Sketcher.Constraint("Horizontal", 10))
sketch5.addConstraint(Sketcher.Constraint("Coincident", 2, 3, 0, 3))
sketch5.addConstraint(Sketcher.Constraint("Equal", 2, 6))
sketch5.addConstraint(Sketcher.Constraint("Equal", 6, 7))
sketch5.addConstraint(Sketcher.Constraint("Equal", 7, 11))
sketch5.addConstraint(Sketcher.Constraint("Symmetric", 0, 3, 6, 3, -2))
sketch5.addConstraint(Sketcher.Constraint("Horizontal", 0, 2, 6, 2))
sketch5.addConstraint(Sketcher.Constraint("Horizontal", 1, 2, 11, 2))
sketch5.addConstraint(Sketcher.Constraint("Equal", 5, 8))
sketch5.addConstraint(Sketcher.Constraint("DistanceY", -1, 1, 1, 2, Q("52 mm")))
sketch5.addConstraint(Sketcher.Constraint("Radius", 0, Q("12.760185 mm")))
sketch5.addConstraint(Sketcher.Constraint("DistanceX", 3, 2, 3, 1, Q("26.346368 mm")))
sketch5.addConstraint(Sketcher.Constraint("DistanceX", -1, 1, 0, 3, Q("34.669699 mm")))
sketch5.addConstraint(Sketcher.Constraint("DistanceY", 0, 2, 2, 2, Q("14.311098 mm")))
sketch5.addConstraint(Sketcher.Constraint("DistanceX", -1, 1, 1, 2, Q("47.378759 mm")))
pocket2 = body.newObject("PartDesign::Pocket", "Pocket001")
pocket2.Profile = sketch5
pocket2.Type = "ThroughAll"
pocket2.Midplane = True
body2 = doc.addObject("PartDesign::Body", "Body001")

# Sketch on XY plane
sketch6 = body2.newObject("Sketcher::SketchObject", "Sketch005")
sketch6.AttachmentSupport = (doc.getObject("XY_Plane001"), [""])
sketch6.MapMode = "FlatFace"
sketch6.AttachmentOffset = App.Placement(V(0, 0, -100), App.Rotation())
sketch6.addGeometry(Part.ArcOfCircle(Part.Circle(V(-80, -65, 0), V(0, 0, 1), 10), math.radians(0), math.radians(180)), False)
sketch6.addGeometry(Part.ArcOfCircle(Part.Circle(V(-80, -65, 0), V(0, 0, 1), 10), math.radians(180), math.radians(270)), False)
sketch6.addGeometry(Part.ArcOfCircle(Part.Circle(V(-80, -65, 0), V(0, 0, 1), 10), math.radians(-90), math.radians(0)), False)
sketch6.addGeometry(Part.Circle(V(-80, -65, 0), V(0, 0, 1), 6), False)
sketch6.addConstraint(Sketcher.Constraint("Tangent", 0, 2, 1, 1))
sketch6.addConstraint(Sketcher.Constraint("Tangent", 1, 2, 2, 1))
sketch6.addConstraint(Sketcher.Constraint("Tangent", 2, 2, 0, 1))
sketch6.addConstraint(Sketcher.Constraint("Coincident", 3, 3, 0, 3))
sketch6.addConstraint(Sketcher.Constraint("Horizontal", 3, 3, 0, 2))
sketch6.addConstraint(Sketcher.Constraint("Horizontal", 0, 2, 2, 2))
sketch6.addConstraint(Sketcher.Constraint("Vertical", 3, 3, 1, 2))
sketch6.addConstraint(Sketcher.Constraint("DistanceX", 0, 2, -1, 1, Q("90 mm")))
sketch6.addConstraint(Sketcher.Constraint("DistanceY", 1, 2, -1, 1, Q("75 mm")))
sketch6.addConstraint(Sketcher.Constraint("Radius", 0, Q("9.592659 mm")))
sketch6.addConstraint(Sketcher.Constraint("Diameter", 3, Q("11.846566 mm")))
pad4 = body2.newObject("PartDesign::Pad", "Pad003")
pad4.Profile = sketch6
pad4.setExpression("Length", "Params.pad4_length")
body3 = doc.addObject("PartDesign::Body", "Body002")

# Sketch on XY plane
sketch7 = body3.newObject("Sketcher::SketchObject", "Sketch006")
sketch7.AttachmentSupport = (doc.getObject("XY_Plane002"), [""])
sketch7.MapMode = "FlatFace"
sketch7.AttachmentOffset = App.Placement(V(0, 0, -100), App.Rotation())
sketch7.addGeometry(Part.ArcOfCircle(Part.Circle(V(-80, 65, 0), V(0, 0, 1), 10), math.radians(0), math.radians(90)), False)
sketch7.addGeometry(Part.ArcOfCircle(Part.Circle(V(-80, 65, 0), V(0, 0, 1), 10), math.radians(90), math.radians(180)), False)
sketch7.addGeometry(Part.ArcOfCircle(Part.Circle(V(-80, 65, 0), V(0, 0, 1), 10), math.radians(-180), math.radians(0)), False)
sketch7.addGeometry(Part.Circle(V(-80, 65, 0), V(0, 0, 1), 6), False)
sketch7.addConstraint(Sketcher.Constraint("Tangent", 0, 2, 1, 1))
sketch7.addConstraint(Sketcher.Constraint("Tangent", 1, 2, 2, 1))
sketch7.addConstraint(Sketcher.Constraint("Tangent", 2, 2, 0, 1))
sketch7.addConstraint(Sketcher.Constraint("Coincident", 3, 3, 0, 3))
sketch7.addConstraint(Sketcher.Constraint("Horizontal", 3, 3, 1, 2))
sketch7.addConstraint(Sketcher.Constraint("Horizontal", 1, 2, 2, 2))
sketch7.addConstraint(Sketcher.Constraint("Vertical", 3, 3, 0, 2))
sketch7.addConstraint(Sketcher.Constraint("DistanceY", -1, 1, 0, 2, Q("75 mm")))
sketch7.addConstraint(Sketcher.Constraint("DistanceX", 1, 2, -1, 1, Q("90 mm")))
sketch7.addConstraint(Sketcher.Constraint("Radius", 0, Q("9.592659 mm")))
sketch7.addConstraint(Sketcher.Constraint("Diameter", 3, Q("11.846566 mm")))
pad5 = body3.newObject("PartDesign::Pad", "Pad004")
pad5.Profile = sketch7
pad5.setExpression("Length", "Params.pad5_length")
body4 = doc.addObject("PartDesign::Body", "Body003")

# Sketch on XY plane
sketch8 = body4.newObject("Sketcher::SketchObject", "Sketch007")
sketch8.AttachmentSupport = (doc.getObject("XY_Plane003"), [""])
sketch8.MapMode = "FlatFace"
sketch8.AttachmentOffset = App.Placement(V(0, 0, -100), App.Rotation())
sketch8.addGeometry(Part.ArcOfCircle(Part.Circle(V(80, 65, 0), V(0, 0, 1), 10), math.radians(0), math.radians(90)), False)
sketch8.addGeometry(Part.ArcOfCircle(Part.Circle(V(80, 65, 0), V(0, 0, 1), 10), math.radians(90), math.radians(360)), False)
sketch8.addGeometry(Part.Circle(V(80, 65, 0), V(0, 0, 1), 6), False)
sketch8.addConstraint(Sketcher.Constraint("Tangent", 0, 1, 1, 2))
sketch8.addConstraint(Sketcher.Constraint("Coincident", 1, 1, 0, 2))
sketch8.addConstraint(Sketcher.Constraint("Coincident", 2, 3, 0, 3))
sketch8.addConstraint(Sketcher.Constraint("Horizontal", 2, 3, 0, 1))
sketch8.addConstraint(Sketcher.Constraint("Vertical", 2, 3, 1, 1))
sketch8.addConstraint(Sketcher.Constraint("DistanceX", -1, 1, 0, 1, Q("90 mm")))
sketch8.addConstraint(Sketcher.Constraint("DistanceY", -1, 1, 1, 1, Q("75 mm")))
sketch8.addConstraint(Sketcher.Constraint("Radius", 0, Q("9.592659 mm")))
sketch8.addConstraint(Sketcher.Constraint("Diameter", 2, Q("11.846566 mm")))
pad6 = body4.newObject("PartDesign::Pad", "Pad005")
pad6.Profile = sketch8
pad6.setExpression("Length", "Params.pad6_length")
body5 = doc.addObject("PartDesign::Body", "Body004")

# Sketch on XY plane
sketch9 = body5.newObject("Sketcher::SketchObject", "Sketch008")
sketch9.AttachmentSupport = (doc.getObject("XY_Plane004"), [""])
sketch9.MapMode = "FlatFace"
sketch9.AttachmentOffset = App.Placement(V(0, 0, -100), App.Rotation())
sketch9.addGeometry(Part.ArcOfCircle(Part.Circle(V(80, -65, 0), V(0, 0, 1), 10), math.radians(-90), math.radians(0)), False)
sketch9.addGeometry(Part.ArcOfCircle(Part.Circle(V(80, -65, 0), V(0, 0, 1), 10), math.radians(0), math.radians(270)), False)
sketch9.addGeometry(Part.Circle(V(80, -65, 0), V(0, 0, 1), 6), False)
sketch9.addConstraint(Sketcher.Constraint("Tangent", 0, 1, 1, 2))
sketch9.addConstraint(Sketcher.Constraint("Coincident", 1, 1, 0, 2))
sketch9.addConstraint(Sketcher.Constraint("Coincident", 2, 3, 0, 3))
sketch9.addConstraint(Sketcher.Constraint("Horizontal", 2, 3, 1, 1))
sketch9.addConstraint(Sketcher.Constraint("Vertical", 2, 3, 0, 1))
sketch9.addConstraint(Sketcher.Constraint("DistanceY", 0, 1, -1, 1, Q("75 mm")))
sketch9.addConstraint(Sketcher.Constraint("DistanceX", -1, 1, 1, 1, Q("90 mm")))
sketch9.addConstraint(Sketcher.Constraint("Radius", 0, Q("9.592659 mm")))
sketch9.addConstraint(Sketcher.Constraint("Diameter", 2, Q("11.846566 mm")))
pad7 = body5.newObject("PartDesign::Pad", "Pad006")
pad7.Profile = sketch9
pad7.setExpression("Length", "Params.pad7_length")
body.AllowCompound = True
doc.recompute()

boolean = body.newObject("PartDesign::Boolean", "Boolean")
boolean.Type = "Fuse"
boolean.addObjects([body2])
doc.recompute()

boolean2 = body.newObject("PartDesign::Boolean", "Boolean001")
boolean2.Type = "Fuse"
boolean2.addObjects([body3])
doc.recompute()

boolean3 = body.newObject("PartDesign::Boolean", "Boolean002")
boolean3.Type = "Fuse"
boolean3.addObjects([body4])
doc.recompute()

boolean4 = body.newObject("PartDesign::Boolean", "Boolean003")
boolean4.Type = "Fuse"
boolean4.addObjects([body5])

# Sketch on XY plane
sketch10 = body.newObject("Sketcher::SketchObject", "Sketch009")
sketch10.AttachmentSupport = (doc.getObject("XY_Plane"), [""])
sketch10.MapMode = "FlatFace"
sketch10.addGeometry(Part.ArcOfCircle(Part.Circle(V(-80, 65, 0), V(0, 0, 1), 10), math.radians(0), math.radians(90)), False)
sketch10.addGeometry(Part.ArcOfCircle(Part.Circle(V(-80, 65, 0), V(0, 0, 1), 10), math.radians(90), math.radians(180)), False)
sketch10.addGeometry(Part.ArcOfCircle(Part.Circle(V(-80, 65, 0), V(0, 0, 1), 10), math.radians(-180), math.radians(0)), False)
sketch10.addGeometry(Part.Circle(V(-80, 65, 0), V(0, 0, 1), 6), False)
sketch10.addGeometry(Part.ArcOfCircle(Part.Circle(V(-80, -65, 0), V(0, 0, 1), 10), math.radians(0), math.radians(180)), False)
sketch10.addGeometry(Part.ArcOfCircle(Part.Circle(V(-80, -65, 0), V(0, 0, 1), 10), math.radians(180), math.radians(270)), False)
sketch10.addGeometry(Part.ArcOfCircle(Part.Circle(V(-80, -65, 0), V(0, 0, 1), 10), math.radians(-90), math.radians(0)), False)
sketch10.addGeometry(Part.Circle(V(-80, -65, 0), V(0, 0, 1), 6), False)
sketch10.addGeometry(Part.ArcOfCircle(Part.Circle(V(80, -65, 0), V(0, 0, 1), 10), math.radians(-90), math.radians(0)), False)
sketch10.addGeometry(Part.ArcOfCircle(Part.Circle(V(80, -65, 0), V(0, 0, 1), 10), math.radians(0), math.radians(270)), False)
sketch10.addGeometry(Part.Circle(V(80, -65, 0), V(0, 0, 1), 6), False)
sketch10.addGeometry(Part.ArcOfCircle(Part.Circle(V(0, 64, 0), V(0, 0, 1), 8), math.radians(0), math.radians(180)), False)
sketch10.addGeometry(Part.LineSegment(V(-8, 64, 0), V(-8, 38, 0)), False)
sketch10.addGeometry(Part.ArcOfCircle(Part.Circle(V(0, 38, 0), V(0, 0, 1), 8), math.radians(180), math.radians(360)), False)
sketch10.addGeometry(Part.LineSegment(V(8, 38, 0), V(8, 64, 0)), False)
sketch10.addGeometry(Part.ArcOfCircle(Part.Circle(V(80, 65, 0), V(0, 0, 1), 10), math.radians(0), math.radians(90)), False)
sketch10.addGeometry(Part.ArcOfCircle(Part.Circle(V(80, 65, 0), V(0, 0, 1), 10), math.radians(90), math.radians(360)), False)
sketch10.addGeometry(Part.Circle(V(80, 65, 0), V(0, 0, 1), 6), False)
sketch10.addConstraint(Sketcher.Constraint("Tangent", 0, 2, 1, 1))
sketch10.addConstraint(Sketcher.Constraint("Tangent", 1, 2, 2, 1))
sketch10.addConstraint(Sketcher.Constraint("Tangent", 2, 2, 0, 1))
sketch10.addConstraint(Sketcher.Constraint("Tangent", 4, 2, 5, 1))
sketch10.addConstraint(Sketcher.Constraint("Tangent", 5, 2, 6, 1))
sketch10.addConstraint(Sketcher.Constraint("Tangent", 6, 2, 4, 1))
sketch10.addConstraint(Sketcher.Constraint("Tangent", 8, 1, 9, 2))
sketch10.addConstraint(Sketcher.Constraint("Coincident", 9, 1, 8, 2))
sketch10.addConstraint(Sketcher.Constraint("Tangent", 11, 2, 12, 1))
sketch10.addConstraint(Sketcher.Constraint("Tangent", 12, 2, 13, 1))
sketch10.addConstraint(Sketcher.Constraint("Tangent", 13, 2, 14, 1))
sketch10.addConstraint(Sketcher.Constraint("Tangent", 14, 2, 11, 1))
sketch10.addConstraint(Sketcher.Constraint("Tangent", 15, 1, 16, 2))
sketch10.addConstraint(Sketcher.Constraint("Coincident", 16, 1, 15, 2))
sketch10.addConstraint(Sketcher.Constraint("Vertical", 12))
sketch10.addConstraint(Sketcher.Constraint("Vertical", 14))
sketch10.addConstraint(Sketcher.Constraint("Coincident", 3, 3, 0, 3))
sketch10.addConstraint(Sketcher.Constraint("Coincident", 7, 3, 4, 3))
sketch10.addConstraint(Sketcher.Constraint("Coincident", 10, 3, 8, 3))
sketch10.addConstraint(Sketcher.Constraint("Coincident", 17, 3, 15, 3))
sketch10.addConstraint(Sketcher.Constraint("Equal", 2, 4))
sketch10.addConstraint(Sketcher.Constraint("Equal", 3, 7))
sketch10.addConstraint(Sketcher.Constraint("Equal", 6, 8))
sketch10.addConstraint(Sketcher.Constraint("Equal", 7, 10))
sketch10.addConstraint(Sketcher.Constraint("Equal", 9, 15))
sketch10.addConstraint(Sketcher.Constraint("Equal", 10, 17))
sketch10.addConstraint(Sketcher.Constraint("Symmetric", 0, 3, 8, 3, -1, 1))
sketch10.addConstraint(Sketcher.Constraint("Symmetric", 4, 3, 15, 3, -1, 1))
sketch10.addConstraint(Sketcher.Constraint("Symmetric", 4, 3, 8, 3, -2))
sketch10.addConstraint(Sketcher.Constraint("PointOnObject", 11, 3, -2))
sketch10.addConstraint(Sketcher.Constraint("Horizontal", 17, 3, 1, 2))
sketch10.addConstraint(Sketcher.Constraint("Horizontal", 1, 2, 2, 2))
sketch10.addConstraint(Sketcher.Constraint("Horizontal", 10, 3, 4, 2))
sketch10.addConstraint(Sketcher.Constraint("Horizontal", 4, 2, 6, 2))
sketch10.addConstraint(Sketcher.Constraint("Horizontal", 6, 2, 9, 1))
sketch10.addConstraint(Sketcher.Constraint("Horizontal", 2, 2, 15, 1))
sketch10.addConstraint(Sketcher.Constraint("Vertical", 7, 3, 0, 2))
sketch10.addConstraint(Sketcher.Constraint("Vertical", 0, 2, 5, 2))
sketch10.addConstraint(Sketcher.Constraint("Vertical", 17, 3, 8, 1))
sketch10.addConstraint(Sketcher.Constraint("Vertical", 8, 1, 16, 1))
sketch10.addConstraint(Sketcher.Constraint("DistanceY", -1, 1, 0, 2, Q("75 mm")))
sketch10.addConstraint(Sketcher.Constraint("DistanceX", 1, 2, -1, 1, Q("90 mm")))
sketch10.addConstraint(Sketcher.Constraint("Radius", 0, Q("9.592659 mm")))
sketch10.addConstraint(Sketcher.Constraint("Radius", 11, Q("8.32333 mm")))
sketch10.addConstraint(Sketcher.Constraint("Diameter", 3, Q("11.846566 mm")))
sketch10.addConstraint(Sketcher.Constraint("DistanceY", 12, 2, 12, 1, Q("25.52037 mm")))
sketch10.addConstraint(Sketcher.Constraint("DistanceY", 11, 3, 1, 3, Q("1.788259 mm")))
pad8 = body.newObject("PartDesign::Pad", "Pad007")
pad8.Profile = sketch10
pad8.setExpression("Length", "Params.pad8_length")

doc.recompute()
